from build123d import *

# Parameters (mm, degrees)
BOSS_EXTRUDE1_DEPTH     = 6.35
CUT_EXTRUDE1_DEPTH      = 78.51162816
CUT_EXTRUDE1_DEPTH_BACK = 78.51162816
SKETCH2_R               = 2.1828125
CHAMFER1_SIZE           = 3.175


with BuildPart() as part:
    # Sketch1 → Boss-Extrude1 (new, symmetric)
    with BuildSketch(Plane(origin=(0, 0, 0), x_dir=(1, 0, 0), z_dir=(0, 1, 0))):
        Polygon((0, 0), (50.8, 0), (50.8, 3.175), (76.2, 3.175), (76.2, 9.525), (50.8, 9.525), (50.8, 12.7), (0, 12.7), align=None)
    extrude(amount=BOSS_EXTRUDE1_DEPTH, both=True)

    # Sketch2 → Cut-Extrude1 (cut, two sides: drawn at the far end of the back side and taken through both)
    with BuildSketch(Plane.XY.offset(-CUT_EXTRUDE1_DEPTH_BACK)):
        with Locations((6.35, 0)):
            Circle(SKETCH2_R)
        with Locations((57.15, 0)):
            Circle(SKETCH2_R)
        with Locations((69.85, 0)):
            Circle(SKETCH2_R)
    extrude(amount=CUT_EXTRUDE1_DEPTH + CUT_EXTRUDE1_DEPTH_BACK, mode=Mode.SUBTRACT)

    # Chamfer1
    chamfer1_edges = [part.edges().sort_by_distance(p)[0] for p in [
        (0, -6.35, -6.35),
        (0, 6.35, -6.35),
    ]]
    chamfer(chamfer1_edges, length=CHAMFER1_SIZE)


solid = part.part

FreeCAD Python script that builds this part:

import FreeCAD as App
import Part
import Sketcher
Q = App.Units.Quantity


def edges_at(feature, points):
    """Names of the edges that pass closest to the given points."""
    edges = feature.Shape.Edges
    near = lambda p: min(range(len(edges)), key=lambda i: edges[i].distToShape(Part.Vertex(*p))[0])
    return sorted({f"Edge{near(p) + 1}" for p in points})

doc = App.newDocument("Part")
params = doc.addObject("Spreadsheet::Sheet", "Params")
for row, (alias, value) in enumerate([
    ("sketch1_width", "2 in"),
    ("sketch1_width2", "1 in"),
    ("sketch1_height", "0.5 in"),
    ("sketch1_height2", "0.25 in"),
    ("pad1_length", "0.5 in"),
    ("sketch2_diameter", "0.171875 in"),
    ("chamfer_size", "0.125 in"),
], start=1):
    params.set(f"A{row}", alias)
    params.set(f"B{row}", "=" + value)
    params.setAlias(f"B{row}", alias)

body = doc.addObject("PartDesign::Body", "Body")

# Sketch on XZ plane
sketch1 = doc.addObject("Sketcher::SketchObject", "Sketch")
body.addObject(sketch1)
sketch1.AttachmentSupport = (doc.XZ_Plane, [""])
sketch1.MapMode = "FlatFace"
sketch1.addGeometry([
    Part.LineSegment(App.Vector(0, 0, 0), App.Vector(50.8, 0, 0)),  # 0
    Part.LineSegment(App.Vector(50.8, 0, 0), App.Vector(50.8, -3.175, 0)),  # 1
    Part.LineSegment(App.Vector(50.8, -3.175, 0), App.Vector(76.2, -3.175, 0)),  # 2
    Part.LineSegment(App.Vector(76.2, -3.175, 0), App.Vector(76.2, -9.525, 0)),  # 3
    Part.LineSegment(App.Vector(76.2, -9.525, 0), App.Vector(50.8, -9.525, 0)),  # 4
    Part.LineSegment(App.Vector(50.8, -9.525, 0), App.Vector(50.8, -12.7, 0)),  # 5
    Part.LineSegment(App.Vector(50.8, -12.7, 0), App.Vector(0, -12.7, 0)),  # 6
    Part.LineSegment(App.Vector(0, -12.7, 0), App.Vector(0, 0, 0)),  # 7
], False)
sketch1.addConstraint([
    Sketcher.Constraint("Coincident", 0, 2, 1, 1),
    Sketcher.Constraint("Coincident", 1, 2, 2, 1),
    Sketcher.Constraint("Coincident", 2, 2, 3, 1),
    Sketcher.Constraint("Coincident", 3, 2, 4, 1),
    Sketcher.Constraint("Coincident", 4, 2, 5, 1),
    Sketcher.Constraint("Coincident", 5, 2, 6, 1),
    Sketcher.Constraint("Coincident", 6, 2, 7, 1),
    Sketcher.Constraint("Coincident", 7, 2, 0, 1),
    Sketcher.Constraint("Horizontal", 0),
    Sketcher.Constraint("Vertical", 1),
    Sketcher.Constraint("Horizontal", 2),
    Sketcher.Constraint("Vertical", 3),
    Sketcher.Constraint("Horizontal", 4),
    Sketcher.Constraint("Vertical", 5),
    Sketcher.Constraint("Horizontal", 6),
    Sketcher.Constraint("Vertical", 7),
    Sketcher.Constraint("Coincident", 7, 2, -1, 1),
    Sketcher.Constraint("Vertical", 1, 2, 4, 2),
    Sketcher.Constraint("Equal", 1, 5),
    Sketcher.Constraint("DistanceX", 0, 1, 0, 2, Q("2 in")),
    Sketcher.Constraint("DistanceX", 2, 1, 2, 2, Q("1 in")),
    Sketcher.Constraint("DistanceY", 7, 1, 7, 2, Q("0.5 in")),
    Sketcher.Constraint("DistanceY", 3, 2, 3, 1, Q("0.25 in")),
])
sketch1.setExpression("Constraints[19]", "Params.sketch1_width")
sketch1.setExpression("Constraints[20]", "Params.sketch1_width2")
sketch1.setExpression("Constraints[21]", "Params.sketch1_height")
sketch1.setExpression("Constraints[22]", "Params.sketch1_height2")
pad1 = doc.addObject("PartDesign::Pad", "Pad")
body.addObject(pad1)
pad1.Profile = sketch1
pad1.setExpression("Length", "Params.pad1_length")
pad1.Midplane = True

# Sketch on XY plane
sketch2 = doc.addObject("Sketcher::SketchObject", "Sketch001")
body.addObject(sketch2)
sketch2.AttachmentSupport = (doc.XY_Plane, [""])
sketch2.MapMode = "FlatFace"
sketch2.addGeometry([
    Part.Circle(App.Vector(6.35, 0, 0), App.Vector(0, 0, 1), 2.182812),
    Part.Circle(App.Vector(57.15, 0, 0), App.Vector(0, 0, 1), 2.182812),
    Part.Circle(App.Vector(69.85, 0, 0), App.Vector(0, 0, 1), 2.182812),
], False)
sketch2.addConstraint([
    Sketcher.Constraint("Equal", 0, 1),
    Sketcher.Constraint("Equal", 1, 2),
    Sketcher.Constraint("PointOnObject", 0, 3, -1),
    Sketcher.Constraint("PointOnObject", 1, 3, -1),
    Sketcher.Constraint("PointOnObject", 2, 3, -1),
    Sketcher.Constraint("Diameter", 0, Q("0.171875 in")),
    Sketcher.Constraint("DistanceX", 0, 3, 1, 3, Q("2 in")),
    Sketcher.Constraint("DistanceX", 1, 3, 2, 3, Q("0.5 in")),
    Sketcher.Constraint("DistanceX", -1, 1, 0, 3, Q("0.25 in")),
])
sketch2.setExpression("Constraints[5]", "Params.sketch2_diameter")
pocket1 = doc.addObject("PartDesign::Pocket", "Pocket")
body.addObject(pocket1)
pocket1.Profile = sketch2
pocket1.Type = "ThroughAll"
pocket1.Midplane = True
doc.recompute()

chamfer = doc.addObject("PartDesign::Chamfer", "Chamfer")
body.addObject(chamfer)
chamfer.Base = (pocket1, edges_at(pocket1, [(0, -6.35, -6.35), (0, 6.35, -6.35)]))
chamfer.setExpression("Size", "Params.chamfer_size")

doc.recompute()
